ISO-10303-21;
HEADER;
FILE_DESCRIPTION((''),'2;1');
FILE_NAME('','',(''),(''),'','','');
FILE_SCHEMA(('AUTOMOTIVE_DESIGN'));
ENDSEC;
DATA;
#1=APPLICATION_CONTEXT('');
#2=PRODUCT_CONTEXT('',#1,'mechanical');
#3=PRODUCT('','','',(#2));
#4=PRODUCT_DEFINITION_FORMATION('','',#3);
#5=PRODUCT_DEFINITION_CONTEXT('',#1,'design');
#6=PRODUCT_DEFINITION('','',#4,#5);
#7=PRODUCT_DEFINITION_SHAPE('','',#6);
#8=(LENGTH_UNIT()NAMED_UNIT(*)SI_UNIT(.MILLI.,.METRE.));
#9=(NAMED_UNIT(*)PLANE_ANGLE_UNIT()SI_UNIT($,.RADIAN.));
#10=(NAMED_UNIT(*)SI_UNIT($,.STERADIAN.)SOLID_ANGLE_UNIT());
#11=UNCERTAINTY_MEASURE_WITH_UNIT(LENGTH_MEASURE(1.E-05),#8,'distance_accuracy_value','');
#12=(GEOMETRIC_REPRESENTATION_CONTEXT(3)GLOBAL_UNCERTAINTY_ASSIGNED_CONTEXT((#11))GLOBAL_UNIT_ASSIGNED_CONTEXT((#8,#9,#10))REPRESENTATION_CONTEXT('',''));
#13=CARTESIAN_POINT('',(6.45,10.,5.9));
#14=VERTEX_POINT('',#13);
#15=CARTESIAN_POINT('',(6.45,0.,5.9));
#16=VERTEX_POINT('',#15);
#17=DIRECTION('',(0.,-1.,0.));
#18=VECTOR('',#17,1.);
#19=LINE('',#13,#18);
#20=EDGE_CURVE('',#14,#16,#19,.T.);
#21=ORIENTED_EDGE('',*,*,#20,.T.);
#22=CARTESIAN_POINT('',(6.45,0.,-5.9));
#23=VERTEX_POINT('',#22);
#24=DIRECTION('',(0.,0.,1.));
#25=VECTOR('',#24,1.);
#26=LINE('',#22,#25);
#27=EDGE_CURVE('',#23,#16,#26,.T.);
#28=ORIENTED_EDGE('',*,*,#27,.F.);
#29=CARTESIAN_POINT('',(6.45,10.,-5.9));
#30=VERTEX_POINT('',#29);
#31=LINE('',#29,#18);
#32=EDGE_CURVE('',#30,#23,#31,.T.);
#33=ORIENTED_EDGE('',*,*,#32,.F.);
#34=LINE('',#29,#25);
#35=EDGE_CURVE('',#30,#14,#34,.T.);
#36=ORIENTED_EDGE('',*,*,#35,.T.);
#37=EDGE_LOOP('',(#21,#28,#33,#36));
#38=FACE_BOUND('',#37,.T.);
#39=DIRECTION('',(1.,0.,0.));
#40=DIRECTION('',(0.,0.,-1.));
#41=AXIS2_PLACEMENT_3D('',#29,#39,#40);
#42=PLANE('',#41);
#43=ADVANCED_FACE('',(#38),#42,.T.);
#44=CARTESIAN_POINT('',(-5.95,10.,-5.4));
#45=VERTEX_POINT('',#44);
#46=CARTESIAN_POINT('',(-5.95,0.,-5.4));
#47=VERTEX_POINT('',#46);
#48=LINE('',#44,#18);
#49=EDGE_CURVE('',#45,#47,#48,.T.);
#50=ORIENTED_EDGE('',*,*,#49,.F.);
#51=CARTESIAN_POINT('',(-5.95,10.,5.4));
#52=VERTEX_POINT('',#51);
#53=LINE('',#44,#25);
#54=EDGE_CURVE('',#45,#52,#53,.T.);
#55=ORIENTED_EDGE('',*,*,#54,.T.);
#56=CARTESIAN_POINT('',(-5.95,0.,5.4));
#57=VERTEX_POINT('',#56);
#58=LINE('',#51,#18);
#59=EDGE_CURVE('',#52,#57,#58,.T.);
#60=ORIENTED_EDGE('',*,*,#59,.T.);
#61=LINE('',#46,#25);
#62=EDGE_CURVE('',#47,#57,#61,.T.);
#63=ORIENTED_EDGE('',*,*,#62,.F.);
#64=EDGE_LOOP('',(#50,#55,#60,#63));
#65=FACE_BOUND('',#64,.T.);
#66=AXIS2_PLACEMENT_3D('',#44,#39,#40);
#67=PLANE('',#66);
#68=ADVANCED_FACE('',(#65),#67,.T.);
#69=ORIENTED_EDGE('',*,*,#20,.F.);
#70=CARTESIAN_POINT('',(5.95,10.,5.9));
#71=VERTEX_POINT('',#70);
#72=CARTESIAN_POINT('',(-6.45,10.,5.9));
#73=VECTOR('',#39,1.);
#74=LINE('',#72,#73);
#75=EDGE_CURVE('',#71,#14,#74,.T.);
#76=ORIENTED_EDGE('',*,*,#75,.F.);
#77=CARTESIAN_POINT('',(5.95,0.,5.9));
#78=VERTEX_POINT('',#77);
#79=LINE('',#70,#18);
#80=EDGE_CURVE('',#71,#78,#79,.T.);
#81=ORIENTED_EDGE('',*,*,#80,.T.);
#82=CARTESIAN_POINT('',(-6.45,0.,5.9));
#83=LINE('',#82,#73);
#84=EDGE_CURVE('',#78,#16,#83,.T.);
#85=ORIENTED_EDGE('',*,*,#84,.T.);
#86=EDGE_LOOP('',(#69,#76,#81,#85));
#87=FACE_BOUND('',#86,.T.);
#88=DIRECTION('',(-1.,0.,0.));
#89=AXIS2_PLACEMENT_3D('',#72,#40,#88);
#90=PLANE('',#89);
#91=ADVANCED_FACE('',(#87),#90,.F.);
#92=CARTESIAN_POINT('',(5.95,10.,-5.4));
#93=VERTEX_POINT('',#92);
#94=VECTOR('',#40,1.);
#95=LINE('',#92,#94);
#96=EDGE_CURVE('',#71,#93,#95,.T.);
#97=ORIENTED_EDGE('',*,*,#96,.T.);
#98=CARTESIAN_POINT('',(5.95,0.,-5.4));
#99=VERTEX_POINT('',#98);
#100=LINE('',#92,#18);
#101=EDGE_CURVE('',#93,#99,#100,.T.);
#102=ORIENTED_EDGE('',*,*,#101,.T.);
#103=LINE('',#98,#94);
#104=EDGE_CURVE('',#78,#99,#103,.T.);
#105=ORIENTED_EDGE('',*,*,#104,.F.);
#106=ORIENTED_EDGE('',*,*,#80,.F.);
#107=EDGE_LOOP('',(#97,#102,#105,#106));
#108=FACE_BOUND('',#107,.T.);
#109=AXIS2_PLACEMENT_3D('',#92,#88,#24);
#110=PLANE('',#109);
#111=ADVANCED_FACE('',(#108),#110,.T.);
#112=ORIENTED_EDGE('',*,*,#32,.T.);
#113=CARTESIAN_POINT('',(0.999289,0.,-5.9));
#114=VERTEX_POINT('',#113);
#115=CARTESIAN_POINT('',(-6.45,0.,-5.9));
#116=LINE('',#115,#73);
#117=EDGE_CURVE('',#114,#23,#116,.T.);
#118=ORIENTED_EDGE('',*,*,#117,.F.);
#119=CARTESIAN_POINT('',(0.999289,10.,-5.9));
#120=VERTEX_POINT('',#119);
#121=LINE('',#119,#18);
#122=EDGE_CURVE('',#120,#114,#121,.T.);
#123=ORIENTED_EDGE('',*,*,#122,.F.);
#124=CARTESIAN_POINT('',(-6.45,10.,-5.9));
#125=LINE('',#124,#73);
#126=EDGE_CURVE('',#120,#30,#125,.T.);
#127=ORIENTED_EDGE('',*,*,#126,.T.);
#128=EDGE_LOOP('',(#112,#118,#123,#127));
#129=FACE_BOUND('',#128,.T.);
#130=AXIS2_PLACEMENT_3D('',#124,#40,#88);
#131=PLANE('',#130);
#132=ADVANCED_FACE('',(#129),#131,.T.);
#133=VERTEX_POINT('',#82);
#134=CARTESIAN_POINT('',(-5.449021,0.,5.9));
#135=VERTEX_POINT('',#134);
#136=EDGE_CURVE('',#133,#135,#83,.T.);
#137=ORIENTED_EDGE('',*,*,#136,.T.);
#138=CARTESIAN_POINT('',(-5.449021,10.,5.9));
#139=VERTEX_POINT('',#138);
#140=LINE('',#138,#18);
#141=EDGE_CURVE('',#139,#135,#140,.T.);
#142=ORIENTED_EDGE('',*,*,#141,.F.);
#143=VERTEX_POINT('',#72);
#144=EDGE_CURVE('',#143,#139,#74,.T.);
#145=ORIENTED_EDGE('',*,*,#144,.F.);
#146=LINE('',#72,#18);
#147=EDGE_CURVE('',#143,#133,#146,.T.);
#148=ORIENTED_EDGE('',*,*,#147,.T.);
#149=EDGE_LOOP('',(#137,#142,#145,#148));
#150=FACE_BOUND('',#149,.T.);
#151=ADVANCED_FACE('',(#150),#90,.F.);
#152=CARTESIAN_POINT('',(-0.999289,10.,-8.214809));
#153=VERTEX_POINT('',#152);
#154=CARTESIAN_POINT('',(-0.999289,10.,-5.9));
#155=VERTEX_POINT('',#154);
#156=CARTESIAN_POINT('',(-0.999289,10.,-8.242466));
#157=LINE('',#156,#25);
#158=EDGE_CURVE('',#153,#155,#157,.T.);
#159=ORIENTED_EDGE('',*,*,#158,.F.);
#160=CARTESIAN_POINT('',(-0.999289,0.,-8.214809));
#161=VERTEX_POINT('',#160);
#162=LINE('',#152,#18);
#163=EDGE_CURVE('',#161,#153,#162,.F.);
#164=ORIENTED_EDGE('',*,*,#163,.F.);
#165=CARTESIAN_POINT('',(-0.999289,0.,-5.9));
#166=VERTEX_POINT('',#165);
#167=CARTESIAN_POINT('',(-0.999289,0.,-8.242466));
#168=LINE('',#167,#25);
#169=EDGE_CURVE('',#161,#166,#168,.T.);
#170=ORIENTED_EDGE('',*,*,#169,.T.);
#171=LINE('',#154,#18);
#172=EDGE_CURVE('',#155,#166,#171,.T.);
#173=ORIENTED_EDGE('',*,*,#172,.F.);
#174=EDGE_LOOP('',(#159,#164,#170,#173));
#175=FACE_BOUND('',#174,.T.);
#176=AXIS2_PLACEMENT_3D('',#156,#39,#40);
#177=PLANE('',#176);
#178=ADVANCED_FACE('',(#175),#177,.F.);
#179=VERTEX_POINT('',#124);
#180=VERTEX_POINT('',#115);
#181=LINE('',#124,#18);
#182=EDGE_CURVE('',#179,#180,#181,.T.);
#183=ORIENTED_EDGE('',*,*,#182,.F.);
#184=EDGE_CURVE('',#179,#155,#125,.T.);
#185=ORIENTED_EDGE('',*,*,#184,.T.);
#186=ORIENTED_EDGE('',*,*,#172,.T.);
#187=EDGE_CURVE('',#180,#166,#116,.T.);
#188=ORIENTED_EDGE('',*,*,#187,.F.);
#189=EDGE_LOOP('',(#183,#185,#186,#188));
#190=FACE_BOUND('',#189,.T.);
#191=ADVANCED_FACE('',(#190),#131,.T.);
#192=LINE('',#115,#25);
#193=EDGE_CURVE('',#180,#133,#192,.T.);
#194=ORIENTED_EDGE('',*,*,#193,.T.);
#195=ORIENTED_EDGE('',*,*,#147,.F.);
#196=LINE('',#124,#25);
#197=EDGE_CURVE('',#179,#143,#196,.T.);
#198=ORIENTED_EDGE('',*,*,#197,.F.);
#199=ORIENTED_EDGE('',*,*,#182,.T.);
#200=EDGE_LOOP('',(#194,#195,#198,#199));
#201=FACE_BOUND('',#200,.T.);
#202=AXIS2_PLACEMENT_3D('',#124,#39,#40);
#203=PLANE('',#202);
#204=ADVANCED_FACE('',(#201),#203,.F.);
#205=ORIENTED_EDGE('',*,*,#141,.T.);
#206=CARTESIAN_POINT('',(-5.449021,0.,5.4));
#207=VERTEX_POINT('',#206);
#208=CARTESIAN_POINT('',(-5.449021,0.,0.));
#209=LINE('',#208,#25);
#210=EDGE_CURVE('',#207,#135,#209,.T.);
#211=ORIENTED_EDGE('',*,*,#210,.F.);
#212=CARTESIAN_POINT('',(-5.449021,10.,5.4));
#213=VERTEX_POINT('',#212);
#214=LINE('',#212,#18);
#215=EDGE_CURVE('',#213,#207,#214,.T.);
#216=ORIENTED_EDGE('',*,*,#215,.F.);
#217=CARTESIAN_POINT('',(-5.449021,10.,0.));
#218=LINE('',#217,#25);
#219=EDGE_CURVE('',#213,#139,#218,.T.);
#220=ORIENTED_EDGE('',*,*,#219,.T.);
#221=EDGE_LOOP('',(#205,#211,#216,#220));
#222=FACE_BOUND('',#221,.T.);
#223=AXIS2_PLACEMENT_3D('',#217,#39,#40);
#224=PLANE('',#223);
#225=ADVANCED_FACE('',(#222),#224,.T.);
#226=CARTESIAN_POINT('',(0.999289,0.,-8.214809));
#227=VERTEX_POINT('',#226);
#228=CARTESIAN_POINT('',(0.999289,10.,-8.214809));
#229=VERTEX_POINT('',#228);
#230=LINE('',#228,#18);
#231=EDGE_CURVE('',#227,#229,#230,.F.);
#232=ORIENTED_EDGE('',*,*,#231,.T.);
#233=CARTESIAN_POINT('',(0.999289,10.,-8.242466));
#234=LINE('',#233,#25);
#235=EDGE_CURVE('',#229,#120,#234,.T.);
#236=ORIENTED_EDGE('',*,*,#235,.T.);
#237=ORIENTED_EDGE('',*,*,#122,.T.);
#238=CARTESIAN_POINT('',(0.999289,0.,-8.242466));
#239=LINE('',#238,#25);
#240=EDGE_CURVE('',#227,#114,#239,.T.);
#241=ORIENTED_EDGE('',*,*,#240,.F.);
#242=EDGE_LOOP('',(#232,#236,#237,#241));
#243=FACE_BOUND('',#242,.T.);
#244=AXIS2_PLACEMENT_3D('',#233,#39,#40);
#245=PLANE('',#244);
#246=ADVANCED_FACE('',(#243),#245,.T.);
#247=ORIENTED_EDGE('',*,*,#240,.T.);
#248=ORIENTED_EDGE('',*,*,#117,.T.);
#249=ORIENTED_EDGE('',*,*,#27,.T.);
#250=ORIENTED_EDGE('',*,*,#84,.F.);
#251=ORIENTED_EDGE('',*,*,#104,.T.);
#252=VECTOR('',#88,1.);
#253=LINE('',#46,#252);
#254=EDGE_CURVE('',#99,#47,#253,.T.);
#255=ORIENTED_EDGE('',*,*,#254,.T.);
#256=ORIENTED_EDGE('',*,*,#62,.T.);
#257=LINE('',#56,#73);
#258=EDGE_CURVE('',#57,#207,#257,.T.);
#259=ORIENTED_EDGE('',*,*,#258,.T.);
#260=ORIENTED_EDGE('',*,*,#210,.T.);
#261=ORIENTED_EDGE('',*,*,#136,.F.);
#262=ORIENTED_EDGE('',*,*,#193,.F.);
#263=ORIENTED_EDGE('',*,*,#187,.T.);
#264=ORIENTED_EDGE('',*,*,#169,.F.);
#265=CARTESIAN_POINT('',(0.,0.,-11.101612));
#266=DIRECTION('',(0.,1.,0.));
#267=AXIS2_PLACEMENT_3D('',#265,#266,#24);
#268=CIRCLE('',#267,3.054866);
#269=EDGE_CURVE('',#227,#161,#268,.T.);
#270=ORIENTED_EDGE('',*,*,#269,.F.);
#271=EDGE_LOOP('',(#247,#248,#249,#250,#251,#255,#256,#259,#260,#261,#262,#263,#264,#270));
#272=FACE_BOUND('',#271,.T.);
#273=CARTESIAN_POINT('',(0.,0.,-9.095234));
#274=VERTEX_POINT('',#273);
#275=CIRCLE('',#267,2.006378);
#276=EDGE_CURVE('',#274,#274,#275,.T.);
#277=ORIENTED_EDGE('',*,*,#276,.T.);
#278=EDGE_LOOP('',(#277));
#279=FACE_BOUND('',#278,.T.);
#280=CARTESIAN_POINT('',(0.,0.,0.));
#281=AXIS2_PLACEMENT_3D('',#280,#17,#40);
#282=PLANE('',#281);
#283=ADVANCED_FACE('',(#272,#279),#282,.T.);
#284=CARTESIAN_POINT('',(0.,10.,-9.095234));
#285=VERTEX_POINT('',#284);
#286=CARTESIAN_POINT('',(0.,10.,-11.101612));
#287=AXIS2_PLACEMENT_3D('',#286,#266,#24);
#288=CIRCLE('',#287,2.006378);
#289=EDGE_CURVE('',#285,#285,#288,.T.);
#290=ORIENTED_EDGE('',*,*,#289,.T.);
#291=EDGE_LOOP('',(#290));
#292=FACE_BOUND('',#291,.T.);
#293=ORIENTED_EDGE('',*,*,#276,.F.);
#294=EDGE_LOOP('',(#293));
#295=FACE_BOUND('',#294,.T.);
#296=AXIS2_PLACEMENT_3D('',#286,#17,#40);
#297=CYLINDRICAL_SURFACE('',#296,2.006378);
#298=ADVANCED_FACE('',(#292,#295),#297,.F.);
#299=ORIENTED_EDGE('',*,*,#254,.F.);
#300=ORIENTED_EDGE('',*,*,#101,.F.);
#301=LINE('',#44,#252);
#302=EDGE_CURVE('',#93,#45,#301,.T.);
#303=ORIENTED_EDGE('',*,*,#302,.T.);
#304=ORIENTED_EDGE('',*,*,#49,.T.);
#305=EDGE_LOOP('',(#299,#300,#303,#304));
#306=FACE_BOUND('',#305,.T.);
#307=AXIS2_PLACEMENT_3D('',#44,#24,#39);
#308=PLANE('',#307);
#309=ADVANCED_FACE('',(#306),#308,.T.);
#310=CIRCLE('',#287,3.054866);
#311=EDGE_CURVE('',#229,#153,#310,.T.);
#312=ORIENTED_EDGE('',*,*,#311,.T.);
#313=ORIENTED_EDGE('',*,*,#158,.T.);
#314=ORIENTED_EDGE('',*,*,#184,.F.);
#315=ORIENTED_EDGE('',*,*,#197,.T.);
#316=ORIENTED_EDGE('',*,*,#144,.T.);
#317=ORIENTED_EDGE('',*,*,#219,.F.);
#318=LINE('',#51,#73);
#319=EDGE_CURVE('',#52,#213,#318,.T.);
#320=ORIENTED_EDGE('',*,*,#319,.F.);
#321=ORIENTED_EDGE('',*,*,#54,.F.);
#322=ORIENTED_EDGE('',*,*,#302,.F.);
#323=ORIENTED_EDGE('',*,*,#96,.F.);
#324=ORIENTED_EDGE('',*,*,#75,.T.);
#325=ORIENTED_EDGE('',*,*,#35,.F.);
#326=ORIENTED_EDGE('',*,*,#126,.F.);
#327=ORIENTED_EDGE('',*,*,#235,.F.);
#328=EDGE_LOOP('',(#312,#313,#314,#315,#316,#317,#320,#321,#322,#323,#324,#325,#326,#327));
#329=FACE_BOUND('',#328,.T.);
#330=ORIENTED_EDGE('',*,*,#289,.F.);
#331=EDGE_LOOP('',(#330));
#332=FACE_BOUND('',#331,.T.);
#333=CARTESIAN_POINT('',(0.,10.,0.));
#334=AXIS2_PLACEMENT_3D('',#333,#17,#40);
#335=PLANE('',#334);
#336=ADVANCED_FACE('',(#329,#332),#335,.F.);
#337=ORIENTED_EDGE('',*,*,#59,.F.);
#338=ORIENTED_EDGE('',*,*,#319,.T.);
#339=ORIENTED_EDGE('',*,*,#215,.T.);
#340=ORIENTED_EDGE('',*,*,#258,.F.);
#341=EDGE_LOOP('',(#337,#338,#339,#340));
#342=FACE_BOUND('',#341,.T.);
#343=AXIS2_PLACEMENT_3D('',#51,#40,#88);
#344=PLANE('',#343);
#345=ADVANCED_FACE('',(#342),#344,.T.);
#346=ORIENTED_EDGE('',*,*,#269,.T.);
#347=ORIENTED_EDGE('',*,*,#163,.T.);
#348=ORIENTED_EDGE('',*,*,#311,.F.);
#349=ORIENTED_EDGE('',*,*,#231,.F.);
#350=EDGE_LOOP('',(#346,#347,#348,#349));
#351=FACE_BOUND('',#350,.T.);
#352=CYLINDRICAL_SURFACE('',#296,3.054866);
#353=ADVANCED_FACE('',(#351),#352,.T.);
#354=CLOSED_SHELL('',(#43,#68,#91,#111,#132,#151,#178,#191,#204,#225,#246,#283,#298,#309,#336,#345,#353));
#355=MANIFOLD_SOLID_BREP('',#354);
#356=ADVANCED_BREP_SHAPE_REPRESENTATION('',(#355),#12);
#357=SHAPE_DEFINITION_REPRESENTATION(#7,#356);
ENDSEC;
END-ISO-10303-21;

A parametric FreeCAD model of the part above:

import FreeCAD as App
import Part
import Sketcher

V = App.Vector
Q = App.Units.Quantity


def add_polygon(sketch, points):
    """Adds a closed chain of lines whose ends are joined by coincident constraints."""
    first, n = sketch.GeometryCount, len(points)
    for a, b in zip(points, points[1:] + points[:1]):
        sketch.addGeometry(Part.LineSegment(App.Vector(*a, 0), App.Vector(*b, 0)), False)
    for i in range(n):
        sketch.addConstraint(Sketcher.Constraint("Coincident", first + i, 2, first + (i + 1) % n, 1))

doc = App.newDocument("Part")
params = doc.addObject("Spreadsheet::Sheet", "Params")
for row, (alias, value) in enumerate([
    ("sketch1_width", "12.9 mm"),
    ("sketch1_height", "11.8 mm"),
    ("pad1_length", "10 mm"),
    ("sketch2_width", "11.9 mm"),
    ("sketch2_height", "10.8 mm"),
    ("pocket1_length", "10 mm"),
    ("sketch3_height", "5.9 mm"),
    ("pocket2_length", "10 mm"),
    ("pad2_length", "10 mm"),
    ("pad3_length", "10 mm"),
    ("pocket3_length", "10 mm"),
], start=1):
    params.set(f"A{row}", alias)
    params.set(f"B{row}", "=" + value)
    params.setAlias(f"B{row}", alias)

body = doc.addObject("PartDesign::Body", "Body")

# Sketch on XZ plane
sketch1 = body.newObject("Sketcher::SketchObject", "Sketch")
sketch1.AttachmentSupport = (doc.getObject("XZ_Plane"), [""])
sketch1.MapMode = "FlatFace"
add_polygon(sketch1, [(-6, -6), (-6, 6), (6, 6), (6, -6)])  # lines 0-3
sketch1.addConstraint([
    Sketcher.Constraint("Vertical", 0),
    Sketcher.Constraint("Horizontal", 1),
    Sketcher.Constraint("Vertical", 2),
    Sketcher.Constraint("Horizontal", 3),
    Sketcher.Constraint("Symmetric", 0, 2, 2, 2, -1, 1),
    Sketcher.Constraint("DistanceX", 1, 1, 1, 2, Q("12.9 mm")),
    Sketcher.Constraint("DistanceY", 0, 1, 0, 2, Q("11.8 mm")),
])
sketch1.setExpression("Constraints[9]", "Params.sketch1_width")
sketch1.setExpression("Constraints[10]", "Params.sketch1_height")
pad1 = body.newObject("PartDesign::Pad", "Pad")
pad1.Profile = sketch1
pad1.setExpression("Length", "Params.pad1_length")
pad1.Reversed = True

# Sketch on XZ plane
sketch2 = body.newObject("Sketcher::SketchObject", "Sketch001")
sketch2.AttachmentSupport = (doc.getObject("XZ_Plane"), [""])
sketch2.MapMode = "FlatFace"
add_polygon(sketch2, [(-6, -5), (-6, 5), (6, 5), (6, -5)])  # lines 0-3
sketch2.addConstraint([
    Sketcher.Constraint("Vertical", 0),
    Sketcher.Constraint("Horizontal", 1),
    Sketcher.Constraint("Vertical", 2),
    Sketcher.Constraint("Horizontal", 3),
    Sketcher.Constraint("Symmetric", 0, 2, 2, 2, -1, 1),
    Sketcher.Constraint("DistanceX", 1, 1, 1, 2, Q("11.9 mm")),
    Sketcher.Constraint("DistanceY", 0, 1, 0, 2, Q("10.8 mm")),
])
sketch2.setExpression("Constraints[9]", "Params.sketch2_width")
sketch2.setExpression("Constraints[10]", "Params.sketch2_height")
pocket1 = body.newObject("PartDesign::Pocket", "Pocket")
pocket1.Profile = sketch2
pocket1.setExpression("Length", "Params.pocket1_length")

# Sketch on XZ plane
sketch3 = body.newObject("Sketcher::SketchObject", "Sketch002")
sketch3.AttachmentSupport = (doc.getObject("XZ_Plane"), [""])
sketch3.MapMode = "FlatFace"
add_polygon(sketch3, [(-5, 0), (-5, 6), (6, 6), (6, 0)])  # lines 0-3
sketch3.addConstraint([
    Sketcher.Constraint("Vertical", 0),
    Sketcher.Constraint("Horizontal", 1),
    Sketcher.Constraint("Vertical", 2),
    Sketcher.Constraint("Horizontal", 3),
    Sketcher.Constraint("PointOnObject", 2, 2, -1),
    Sketcher.Constraint("DistanceY", 0, 1, 0, 2, Q("5.9 mm")),
    Sketcher.Constraint("DistanceX", -1, 1, 1, 2, Q("5.95 mm")),
    Sketcher.Constraint("DistanceX", 1, 1, 1, 2, Q("11.399021 mm")),
])
sketch3.setExpression("Constraints[9]", "Params.sketch3_height")
pocket2 = body.newObject("PartDesign::Pocket", "Pocket001")
pocket2.Profile = sketch3
pocket2.setExpression("Length", "Params.pocket2_length")

# Sketch on XZ plane
sketch4 = body.newObject("Sketcher::SketchObject", "Sketch003")
sketch4.AttachmentSupport = (doc.getObject("XZ_Plane"), [""])
sketch4.MapMode = "FlatFace"
add_polygon(sketch4, [(-1, -8.2), (-1, -5.4), (1, -5.4), (1, -8.2)])  # lines 0-3
sketch4.addConstraint([
    Sketcher.Constraint("Vertical", 0),
    Sketcher.Constraint("Horizontal", 1),
    Sketcher.Constraint("Vertical", 2),
    Sketcher.Constraint("Horizontal", 3),
    Sketcher.Constraint("DistanceY", 0, 2, -1, 1, Q("5.4 mm")),
    Sketcher.Constraint("DistanceX", 1, 1, 1, 2, Q("1.998578 mm")),
    Sketcher.Constraint("DistanceY", 0, 1, 0, 2, Q("2.842466 mm")),
    Sketcher.Constraint("DistanceX", 0, 2, -1, 1, Q("0.999289 mm")),
])
pad2 = body.newObject("PartDesign::Pad", "Pad001")
pad2.Profile = sketch4
pad2.setExpression("Length", "Params.pad2_length")
pad2.Reversed = True

# Sketch on XZ plane
sketch5 = body.newObject("Sketcher::SketchObject", "Sketch004")
sketch5.AttachmentSupport = (doc.getObject("XZ_Plane"), [""])
sketch5.MapMode = "FlatFace"
sketch5.addGeometry(Part.Circle(V(0, -11.1, 0), V(0, 0, 1), 3.1), False)
sketch5.addConstraint([
    Sketcher.Constraint("PointOnObject", 0, 3, -2),
    Sketcher.Constraint("Diameter", 0, Q("6.109732 mm")),
    Sketcher.Constraint("DistanceY", 0, 3, -1, 1, Q("11.101612 mm")),
])
pad3 = body.newObject("PartDesign::Pad", "Pad002")
pad3.Profile = sketch5
pad3.setExpression("Length", "Params.pad3_length")
pad3.Reversed = True

# Sketch on XZ plane
sketch6 = body.newObject("Sketcher::SketchObject", "Sketch005")
sketch6.AttachmentSupport = (doc.getObject("XZ_Plane"), [""])
sketch6.MapMode = "FlatFace"
sketch6.addGeometry(Part.Circle(V(0, -11.1, 0), V(0, 0, 1), 2), False)
sketch6.addConstraint([
    Sketcher.Constraint("PointOnObject", 0, 3, -2),
    Sketcher.Constraint("Diameter", 0, Q("4.012756 mm")),
    Sketcher.Constraint("DistanceY", 0, 3, -1, 1, Q("11.101612 mm")),
])
pocket3 = body.newObject("PartDesign::Pocket", "Pocket002")
pocket3.Profile = sketch6
pocket3.setExpression("Length", "Params.pocket3_length")

doc.recompute()
